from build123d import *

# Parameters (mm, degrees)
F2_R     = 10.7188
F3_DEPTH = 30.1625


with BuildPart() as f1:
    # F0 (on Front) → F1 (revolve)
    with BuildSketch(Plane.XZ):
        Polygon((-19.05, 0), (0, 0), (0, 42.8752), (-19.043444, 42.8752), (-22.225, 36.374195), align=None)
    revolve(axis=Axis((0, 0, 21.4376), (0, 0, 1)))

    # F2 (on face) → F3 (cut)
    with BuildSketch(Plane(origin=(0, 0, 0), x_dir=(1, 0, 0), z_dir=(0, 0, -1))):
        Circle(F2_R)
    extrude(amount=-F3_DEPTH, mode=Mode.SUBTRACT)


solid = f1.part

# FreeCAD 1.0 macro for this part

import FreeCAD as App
import Part
import Sketcher

V = App.Vector
Q = App.Units.Quantity


def add_polygon(sketch, points):
    """Adds a closed chain of lines whose ends are joined by coincident constraints."""
    first, n = sketch.GeometryCount, len(points)
    for a, b in zip(points, points[1:] + points[:1]):
        sketch.addGeometry(Part.LineSegment(App.Vector(*a, 0), App.Vector(*b, 0)), False)
    for i in range(n):
        sketch.addConstraint(Sketcher.Constraint("Coincident", first + i, 2, first + (i + 1) % n, 1))

doc = App.newDocument("Part")
body = doc.addObject("PartDesign::Body", "Body")

# Sketch on XZ plane
sketch1 = doc.addObject("Sketcher::SketchObject", "Sketch")
body.addObject(sketch1)
sketch1.AttachmentSupport = (doc.XZ_Plane, [""])
sketch1.MapMode = "FlatFace"
add_polygon(sketch1, [(-19, 0), (0, 0), (0, 43), (-19, 43), (-22, 36)])  # lines 0-4
sketch1.addConstraint(Sketcher.Constraint("Horizontal", 0))
sketch1.addConstraint(Sketcher.Constraint("Vertical", 1))
sketch1.addConstraint(Sketcher.Constraint("Horizontal", 2))
sketch1.addConstraint(Sketcher.Constraint("Coincident", 0, 2, -1, 1))
sketch1.addConstraint(Sketcher.Constraint("DistanceX", 0, 1, 0, 2, Q("0.75 in")))
sketch1.addConstraint(Sketcher.Constraint("DistanceY", 1, 1, 1, 2, Q("1.688 in")))
sketch1.addConstraint(Sketcher.Constraint("Distance", 4, Q("1.4375 in")))
sketch1.addConstraint(Sketcher.Constraint("DistanceX", 3, 2, -1, 1, Q("0.875 in")))
sketch1.addConstraint(Sketcher.Constraint("DistanceX", 2, 2, 2, 1, Q("19.043444 mm")))
revolution = doc.addObject("PartDesign::Revolution", "Revolution")
body.addObject(revolution)
revolution.Profile = sketch1
revolution.ReferenceAxis = (sketch1, ["V_Axis"])
revolution.Angle = 360

# Sketch on XY plane
sketch2 = doc.addObject("Sketcher::SketchObject", "Sketch001")
body.addObject(sketch2)
sketch2.AttachmentSupport = (doc.XY_Plane, [""])
sketch2.MapMode = "FlatFace"
sketch2.addGeometry(Part.Circle(V(0, 0, 0), V(0, 0, 1), 11), False)
sketch2.addConstraint(Sketcher.Constraint("Coincident", 0, 3, -1, 1))
sketch2.addConstraint(Sketcher.Constraint("Diameter", 0, Q("0.844 in")))
pocket1 = doc.addObject("PartDesign::Pocket", "Pocket")
body.addObject(pocket1)
pocket1.Profile = sketch2
pocket1.Length = Q("1.1875 in")
pocket1.Reversed = True

doc.recompute()
